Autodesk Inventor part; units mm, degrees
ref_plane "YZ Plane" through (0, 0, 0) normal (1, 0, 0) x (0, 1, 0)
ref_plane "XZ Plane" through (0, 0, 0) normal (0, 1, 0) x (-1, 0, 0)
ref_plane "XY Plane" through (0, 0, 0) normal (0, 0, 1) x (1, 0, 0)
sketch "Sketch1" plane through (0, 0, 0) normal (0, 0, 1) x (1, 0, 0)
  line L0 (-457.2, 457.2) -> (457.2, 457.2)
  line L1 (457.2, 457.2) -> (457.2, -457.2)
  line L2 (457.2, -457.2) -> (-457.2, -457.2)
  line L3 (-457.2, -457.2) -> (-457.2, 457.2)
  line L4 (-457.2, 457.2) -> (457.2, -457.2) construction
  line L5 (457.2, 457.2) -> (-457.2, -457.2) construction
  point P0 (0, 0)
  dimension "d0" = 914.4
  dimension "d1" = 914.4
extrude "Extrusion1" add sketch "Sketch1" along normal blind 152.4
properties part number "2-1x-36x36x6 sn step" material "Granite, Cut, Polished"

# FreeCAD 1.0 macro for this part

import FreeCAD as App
import Part
import Sketcher
Q = App.Units.Quantity


def add_polygon(sketch, points):
    """Adds a closed chain of lines whose ends are joined by coincident constraints."""
    first, n = sketch.GeometryCount, len(points)
    for a, b in zip(points, points[1:] + points[:1]):
        sketch.addGeometry(Part.LineSegment(App.Vector(*a, 0), App.Vector(*b, 0)), False)
    for i in range(n):
        sketch.addConstraint(Sketcher.Constraint("Coincident", first + i, 2, first + (i + 1) % n, 1))

doc = App.newDocument("Part")
body = doc.addObject("PartDesign::Body", "Body")

sketch1 = doc.addObject("Sketcher::SketchObject", "Sketch")
body.addObject(sketch1)
sketch1.AttachmentSupport = (doc.XY_Plane, [""])
sketch1.MapMode = "FlatFace"
add_polygon(sketch1, [(457.2, 457.2), (-457.2, 457.2), (-457.2, -457.2), (457.2, -457.2)])
sketch1.addConstraint([
    Sketcher.Constraint("Horizontal", 0),
    Sketcher.Constraint("Vertical", 1),
    Sketcher.Constraint("Horizontal", 2),
    Sketcher.Constraint("Vertical", 3),
    Sketcher.Constraint("Symmetric", 0, 2, 2, 2, -1, 1),
    Sketcher.Constraint("Equal", 2, 1),
    Sketcher.Constraint("DistanceX", 0, 2, 0, 1, Q("36 in")),
])
pad1 = doc.addObject("PartDesign::Pad", "Pad")
body.addObject(pad1)
pad1.Profile = sketch1
pad1.Length = Q("6 in")

doc.recompute()
